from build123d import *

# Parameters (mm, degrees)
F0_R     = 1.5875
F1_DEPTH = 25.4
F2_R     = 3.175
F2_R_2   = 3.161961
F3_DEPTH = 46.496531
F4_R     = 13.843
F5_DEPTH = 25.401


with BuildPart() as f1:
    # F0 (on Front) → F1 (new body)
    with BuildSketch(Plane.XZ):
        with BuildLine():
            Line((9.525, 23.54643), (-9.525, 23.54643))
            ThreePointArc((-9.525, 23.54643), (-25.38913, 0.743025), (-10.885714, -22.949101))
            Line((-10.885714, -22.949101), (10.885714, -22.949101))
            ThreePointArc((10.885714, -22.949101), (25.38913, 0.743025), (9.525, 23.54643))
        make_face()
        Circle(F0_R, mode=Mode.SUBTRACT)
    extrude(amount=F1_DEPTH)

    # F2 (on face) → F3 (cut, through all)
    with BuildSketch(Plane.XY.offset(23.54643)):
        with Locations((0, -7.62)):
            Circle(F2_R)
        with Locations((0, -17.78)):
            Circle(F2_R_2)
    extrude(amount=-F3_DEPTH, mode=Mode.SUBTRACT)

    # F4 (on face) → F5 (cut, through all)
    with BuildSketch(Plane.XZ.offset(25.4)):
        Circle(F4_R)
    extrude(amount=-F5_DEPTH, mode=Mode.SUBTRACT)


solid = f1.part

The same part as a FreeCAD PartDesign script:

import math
import FreeCAD as App
import Part
import Sketcher
from FreeCAD import Vector
Q = App.Units.Quantity

doc = App.newDocument("Part")
body = doc.addObject("PartDesign::Body", "Body")

# Sketch on XZ plane
sketch1 = doc.addObject("Sketcher::SketchObject", "Sketch")
body.addObject(sketch1)
sketch1.AttachmentSupport = (doc.XZ_Plane, [""])
sketch1.MapMode = "FlatFace"
sketch1.addGeometry(Part.LineSegment(Vector(9.525, 23.54643, 0), Vector(-9.525, 23.54643, 0)), False)
sketch1.addGeometry(Part.ArcOfCircle(Part.Circle(Vector(0, 0, 0), Vector(0, 0, 1), 25.4), math.radians(112.024312), math.radians(244.623068)), False)
sketch1.addGeometry(Part.LineSegment(Vector(-10.885714, -22.949101, 0), Vector(10.885714, -22.949101, 0)), False)
sketch1.addGeometry(Part.ArcOfCircle(Part.Circle(Vector(0, 0, 0), Vector(0, 0, 1), 25.4), math.radians(-64.623068), math.radians(67.975688)), False)
sketch1.addGeometry(Part.Circle(Vector(0, 0, 0), Vector(0, 0, 1), 1.5875), False)
sketch1.addConstraint(Sketcher.Constraint("Coincident", 0, 2, 1, 1))
sketch1.addConstraint(Sketcher.Constraint("Coincident", 1, 2, 2, 1))
sketch1.addConstraint(Sketcher.Constraint("Coincident", 2, 2, 3, 1))
sketch1.addConstraint(Sketcher.Constraint("Coincident", 3, 2, 0, 1))
sketch1.addConstraint(Sketcher.Constraint("Horizontal", 0))
sketch1.addConstraint(Sketcher.Constraint("Horizontal", 2))
sketch1.addConstraint(Sketcher.Constraint("Coincident", 1, 3, -1, 1))
sketch1.addConstraint(Sketcher.Constraint("Coincident", 3, 3, -1, 1))
sketch1.addConstraint(Sketcher.Constraint("Coincident", 4, 3, -1, 1))
sketch1.addConstraint(Sketcher.Constraint("Equal", 1, 3))
sketch1.addConstraint(Sketcher.Constraint("Radius", 1, Q("1 in")))
sketch1.addConstraint(Sketcher.Constraint("Diameter", 4, Q("0.125 in")))
sketch1.addConstraint(Sketcher.Constraint("DistanceX", 0, 2, 0, 1, Q("0.75 in")))
sketch1.addConstraint(Sketcher.Constraint("DistanceX", 2, 1, 2, 2, Q("21.771428 mm")))
pad1 = doc.addObject("PartDesign::Pad", "Pad")
body.addObject(pad1)
pad1.Profile = sketch1
pad1.Length = Q("1 in")

# Sketch on XY plane
sketch2 = doc.addObject("Sketcher::SketchObject", "Sketch001")
body.addObject(sketch2)
sketch2.AttachmentSupport = (doc.XY_Plane, [""])
sketch2.MapMode = "FlatFace"
sketch2.AttachmentOffset = App.Placement(Vector(0, 0, 23.54643), App.Rotation())
sketch2.addGeometry(Part.Circle(Vector(0, -7.62, 0), Vector(0, 0, 1), 3.175), False)
sketch2.addGeometry(Part.Circle(Vector(0, -17.78, 0), Vector(0, 0, 1), 3.161961), False)
sketch2.addConstraint(Sketcher.Constraint("PointOnObject", 0, 3, -2))
sketch2.addConstraint(Sketcher.Constraint("PointOnObject", 1, 3, -2))
sketch2.addConstraint(Sketcher.Constraint("Diameter", 0, Q("0.25 in")))
sketch2.addConstraint(Sketcher.Constraint("DistanceY", 0, 3, -1, 1, Q("0.3 in")))
sketch2.addConstraint(Sketcher.Constraint("DistanceY", 1, 3, -1, 1, Q("0.7 in")))
sketch2.addConstraint(Sketcher.Constraint("Diameter", 1, Q("6.323922 mm")))
pocket1 = doc.addObject("PartDesign::Pocket", "Pocket")
body.addObject(pocket1)
pocket1.Profile = sketch2
pocket1.Type = "ThroughAll"

# Sketch on XZ plane
sketch3 = doc.addObject("Sketcher::SketchObject", "Sketch002")
body.addObject(sketch3)
sketch3.AttachmentSupport = (doc.XZ_Plane, [""])
sketch3.MapMode = "FlatFace"
sketch3.AttachmentOffset = App.Placement(Vector(0, 0, 1 * 25.4), App.Rotation())
sketch3.addGeometry(Part.Circle(Vector(0, 0, 0), Vector(0, 0, 1), 13.843), False)
sketch3.addConstraint(Sketcher.Constraint("Coincident", 0, 3, -1, 1))
sketch3.addConstraint(Sketcher.Constraint("Diameter", 0, Q("1.09 in")))
pocket2 = doc.addObject("PartDesign::Pocket", "Pocket001")
body.addObject(pocket2)
pocket2.Profile = sketch3
pocket2.Type = "ThroughAll"

doc.recompute()
